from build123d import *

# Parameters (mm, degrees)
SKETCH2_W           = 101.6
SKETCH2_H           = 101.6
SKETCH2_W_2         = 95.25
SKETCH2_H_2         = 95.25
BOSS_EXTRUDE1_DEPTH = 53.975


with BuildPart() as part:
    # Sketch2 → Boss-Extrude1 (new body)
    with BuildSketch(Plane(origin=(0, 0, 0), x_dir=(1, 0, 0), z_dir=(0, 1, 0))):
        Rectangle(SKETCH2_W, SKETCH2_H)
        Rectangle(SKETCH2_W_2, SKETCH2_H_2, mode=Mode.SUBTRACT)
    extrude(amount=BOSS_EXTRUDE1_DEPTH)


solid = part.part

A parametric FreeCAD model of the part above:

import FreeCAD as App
import Part
import Sketcher
from FreeCAD import Vector
Q = App.Units.Quantity


def add_polygon(sketch, points):
    """Adds a closed chain of lines whose ends are joined by coincident constraints."""
    first, n = sketch.GeometryCount, len(points)
    for a, b in zip(points, points[1:] + points[:1]):
        sketch.addGeometry(Part.LineSegment(App.Vector(*a, 0), App.Vector(*b, 0)), False)
    for i in range(n):
        sketch.addConstraint(Sketcher.Constraint("Coincident", first + i, 2, first + (i + 1) % n, 1))

doc = App.newDocument("Part")
params = doc.addObject("Spreadsheet::Sheet", "Params")
for row, (alias, value) in enumerate([
    ("sketch1_width", "4 in"),
    ("sketch1_width2", "3.75 in"),
    ("pad1_length", "2.125 in"),
], start=1):
    params.set(f"A{row}", alias)
    params.set(f"B{row}", "=" + value)
    params.setAlias(f"B{row}", alias)

body = doc.addObject("PartDesign::Body", "Body")

sketch1 = doc.addObject("Sketcher::SketchObject", "Sketch")
body.addObject(sketch1)
sketch1.AttachmentSupport = (doc.XZ_Plane, [""])
sketch1.MapMode = "FlatFace"
add_polygon(sketch1, [(-51, -51), (-51, 51), (51, 51), (51, -51)])
add_polygon(sketch1, [(48, 48), (-48, 48), (-48, -48), (48, -48)])
sketch1.addConstraint([
    Sketcher.Constraint("Vertical", 0),
    Sketcher.Constraint("Horizontal", 1),
    Sketcher.Constraint("Vertical", 2),
    Sketcher.Constraint("Horizontal", 3),
    Sketcher.Constraint("Horizontal", 4),
    Sketcher.Constraint("Vertical", 5),
    Sketcher.Constraint("Horizontal", 6),
    Sketcher.Constraint("Vertical", 7),
    Sketcher.Constraint("Symmetric", 0, 2, 2, 2, -1, 1),
    Sketcher.Constraint("Symmetric", 4, 2, 6, 2, -1, 1),
    Sketcher.Constraint("Equal", 3, 0),
    Sketcher.Constraint("Equal", 6, 5),
    Sketcher.Constraint("DistanceX", 1, 1, 1, 2, Q("4 in")),
    Sketcher.Constraint("DistanceX", 4, 2, 4, 1, Q("3.75 in")),
])
sketch1.setExpression("Constraints[20]", "Params.sketch1_width")
sketch1.setExpression("Constraints[21]", "Params.sketch1_width2")
pad1 = doc.addObject("PartDesign::Pad", "Pad")
body.addObject(pad1)
pad1.Profile = sketch1
pad1.setExpression("Length", "Params.pad1_length")
pad1.Reversed = True

doc.recompute()
